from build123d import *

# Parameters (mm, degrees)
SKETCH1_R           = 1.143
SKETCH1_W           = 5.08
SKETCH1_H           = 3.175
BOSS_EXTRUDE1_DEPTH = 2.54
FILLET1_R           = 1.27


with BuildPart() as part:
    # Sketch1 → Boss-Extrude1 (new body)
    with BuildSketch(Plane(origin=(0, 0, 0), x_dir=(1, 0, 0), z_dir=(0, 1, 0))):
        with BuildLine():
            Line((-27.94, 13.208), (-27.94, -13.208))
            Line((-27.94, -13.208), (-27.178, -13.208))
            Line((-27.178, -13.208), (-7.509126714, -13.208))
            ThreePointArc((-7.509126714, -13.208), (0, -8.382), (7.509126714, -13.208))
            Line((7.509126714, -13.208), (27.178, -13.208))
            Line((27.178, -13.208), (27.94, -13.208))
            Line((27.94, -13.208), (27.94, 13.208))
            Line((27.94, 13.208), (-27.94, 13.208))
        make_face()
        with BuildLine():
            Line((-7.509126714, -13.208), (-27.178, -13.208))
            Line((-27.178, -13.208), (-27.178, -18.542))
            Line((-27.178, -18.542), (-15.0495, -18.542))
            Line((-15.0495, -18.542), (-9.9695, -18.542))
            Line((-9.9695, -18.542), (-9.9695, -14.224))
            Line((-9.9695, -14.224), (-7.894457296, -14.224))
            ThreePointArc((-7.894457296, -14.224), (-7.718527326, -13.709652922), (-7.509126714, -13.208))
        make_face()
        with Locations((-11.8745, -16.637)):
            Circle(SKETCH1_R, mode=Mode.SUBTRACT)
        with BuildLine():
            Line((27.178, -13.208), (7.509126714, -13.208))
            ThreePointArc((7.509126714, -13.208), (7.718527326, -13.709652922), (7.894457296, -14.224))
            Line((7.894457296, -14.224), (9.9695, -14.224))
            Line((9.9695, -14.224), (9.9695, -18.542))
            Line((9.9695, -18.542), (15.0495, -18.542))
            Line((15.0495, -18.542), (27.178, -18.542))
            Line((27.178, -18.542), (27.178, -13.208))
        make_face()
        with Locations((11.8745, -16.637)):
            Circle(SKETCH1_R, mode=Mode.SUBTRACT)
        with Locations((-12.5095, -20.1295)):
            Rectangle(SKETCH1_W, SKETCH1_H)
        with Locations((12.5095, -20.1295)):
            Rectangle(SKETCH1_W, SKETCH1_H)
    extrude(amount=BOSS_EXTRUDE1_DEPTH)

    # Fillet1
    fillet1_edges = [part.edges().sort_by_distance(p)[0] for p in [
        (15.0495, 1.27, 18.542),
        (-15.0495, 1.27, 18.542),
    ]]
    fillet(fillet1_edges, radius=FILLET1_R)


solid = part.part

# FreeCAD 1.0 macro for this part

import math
import FreeCAD as App
import Part
import Sketcher

V = App.Vector
Q = App.Units.Quantity


def edges_at(feature, points):
    """Names of the edges that pass closest to the given points."""
    edges = feature.Shape.Edges
    near = lambda p: min(range(len(edges)), key=lambda i: edges[i].distToShape(Part.Vertex(*p))[0])
    return sorted({f"Edge{near(p) + 1}" for p in points})

doc = App.newDocument("Part")
body = doc.addObject("PartDesign::Body", "Body")

sketch1 = body.newObject("Sketcher::SketchObject", "Sketch")
sketch1.AttachmentSupport = (doc.getObject("XZ_Plane"), [""])
sketch1.MapMode = "FlatFace"
sketch1.addGeometry([
    Part.LineSegment(V(-27.9, -13.2, 0), V(-27.9, 13.2, 0)),
    Part.LineSegment(V(-27.9, 13.2, 0), V(-27.2, 13.2, 0)),
    Part.LineSegment(V(-27.2, 13.2, 0), V(-27.2, 18.5, 0)),
    Part.LineSegment(V(-27.2, 18.5, 0), V(-15, 18.5, 0)),
    Part.LineSegment(V(-15, 18.5, 0), V(-15, 21.7, 0)),
    Part.LineSegment(V(-15, 21.7, 0), V(-10, 21.7, 0)),
    Part.LineSegment(V(-10, 21.7, 0), V(-10, 14.2, 0)),
    Part.LineSegment(V(-10, 14.2, 0), V(-7.9, 14.2, 0)),
    Part.ArcOfCircle(Part.Circle(V(0, 16.6, 0), V(0, 0, 1), 8.3), math.radians(-163), math.radians(-155.46)),
    Part.ArcOfCircle(Part.Circle(V(0, 16.6, 0), V(0, 0, 1), 8.3), math.radians(-155), math.radians(-25)),
    Part.ArcOfCircle(Part.Circle(V(0, 16.6, 0), V(0, 0, 1), 8.3), math.radians(-24.54), math.radians(-17)),
    Part.LineSegment(V(7.9, 14.2, 0), V(10, 14.2, 0)),
    Part.LineSegment(V(10, 14.2, 0), V(10, 21.7, 0)),
    Part.LineSegment(V(10, 21.7, 0), V(15, 21.7, 0)),
    Part.LineSegment(V(15, 21.7, 0), V(15, 18.5, 0)),
    Part.LineSegment(V(15, 18.5, 0), V(27.2, 18.5, 0)),
    Part.LineSegment(V(27.2, 18.5, 0), V(27.2, 13.2, 0)),
    Part.LineSegment(V(27.2, 13.2, 0), V(27.9, 13.2, 0)),
    Part.LineSegment(V(27.9, 13.2, 0), V(27.9, -13.2, 0)),
    Part.LineSegment(V(27.9, -13.2, 0), V(-27.9, -13.2, 0)),
    Part.Circle(V(-11.9, 16.6, 0), V(0, 0, 1), 1.1),
    Part.Circle(V(11.9, 16.6, 0), V(0, 0, 1), 1.1),
], False)
sketch1.addConstraint([
    Sketcher.Constraint("Coincident", 0, 2, 1, 1),
    Sketcher.Constraint("Coincident", 1, 2, 2, 1),
    Sketcher.Constraint("Coincident", 2, 2, 3, 1),
    Sketcher.Constraint("Coincident", 3, 2, 4, 1),
    Sketcher.Constraint("Coincident", 4, 2, 5, 1),
    Sketcher.Constraint("Coincident", 5, 2, 6, 1),
    Sketcher.Constraint("Coincident", 6, 2, 7, 1),
    Sketcher.Constraint("Coincident", 7, 2, 8, 1),
    Sketcher.Constraint("Tangent", 8, 2, 9, 1),
    Sketcher.Constraint("Tangent", 9, 2, 10, 1),
    Sketcher.Constraint("Coincident", 10, 2, 11, 1),
    Sketcher.Constraint("Coincident", 11, 2, 12, 1),
    Sketcher.Constraint("Coincident", 12, 2, 13, 1),
    Sketcher.Constraint("Coincident", 13, 2, 14, 1),
    Sketcher.Constraint("Coincident", 14, 2, 15, 1),
    Sketcher.Constraint("Coincident", 15, 2, 16, 1),
    Sketcher.Constraint("Coincident", 16, 2, 17, 1),
    Sketcher.Constraint("Coincident", 17, 2, 18, 1),
    Sketcher.Constraint("Coincident", 18, 2, 19, 1),
    Sketcher.Constraint("Coincident", 19, 2, 0, 1),
    Sketcher.Constraint("Vertical", 0),
    Sketcher.Constraint("Horizontal", 1),
    Sketcher.Constraint("Vertical", 2),
    Sketcher.Constraint("Horizontal", 3),
    Sketcher.Constraint("Vertical", 4),
    Sketcher.Constraint("Horizontal", 5),
    Sketcher.Constraint("Vertical", 6),
    Sketcher.Constraint("Horizontal", 7),
    Sketcher.Constraint("Horizontal", 11),
    Sketcher.Constraint("Vertical", 12),
    Sketcher.Constraint("Horizontal", 13),
    Sketcher.Constraint("Vertical", 14),
    Sketcher.Constraint("Horizontal", 15),
    Sketcher.Constraint("Vertical", 16),
    Sketcher.Constraint("Horizontal", 17),
    Sketcher.Constraint("Vertical", 18),
    Sketcher.Constraint("Horizontal", 19),
    Sketcher.Constraint("Coincident", 10, 3, 8, 3),
    Sketcher.Constraint("Equal", 20, 21),
    Sketcher.Constraint("Symmetric", 0, 2, 18, 2, -1, 1),
    Sketcher.Constraint("Symmetric", 20, 3, 21, 3, -2),
    Sketcher.Constraint("Symmetric", 8, 2, 9, 2, -2),
    Sketcher.Constraint("Symmetric", 6, 2, 11, 2, -2),
    Sketcher.Constraint("Symmetric", 4, 2, 13, 2, -2),
    Sketcher.Constraint("Symmetric", 2, 2, 15, 2, -2),
    Sketcher.Constraint("Horizontal", 10, 3, 20, 3),
    Sketcher.Constraint("Horizontal", 1, 2, 8, 2),
    Sketcher.Constraint("Horizontal", 9, 2, 16, 2),
    Sketcher.Constraint("Diameter", 20, Q("0.09 in")),
    Sketcher.Constraint("DistanceX", 5, 1, 5, 2, Q("0.2 in")),
    Sketcher.Constraint("DistanceX", 19, 2, 19, 1, Q("2.2 in")),
    Sketcher.Constraint("Radius", 8, Q("0.325 in")),
    Sketcher.Constraint("DistanceX", 1, 1, 1, 2, Q("0.03 in")),
    Sketcher.Constraint("DistanceY", 0, 1, 0, 2, Q("1.04 in")),
    Sketcher.Constraint("DistanceY", 2, 1, 2, 2, Q("0.21 in")),
    Sketcher.Constraint("DistanceY", 20, 3, 4, 2, Q("0.2 in")),
    Sketcher.Constraint("DistanceY", 4, 1, 4, 2, Q("0.125 in")),
    Sketcher.Constraint("DistanceY", 6, 2, 6, 1, Q("0.295 in")),
    Sketcher.Constraint("DistanceX", 3, 1, 3, 2, Q("0.4775 in")),
    Sketcher.Constraint("DistanceX", 20, 3, 21, 3, Q("0.935 in")),
])
pad1 = body.newObject("PartDesign::Pad", "Pad")
pad1.Profile = sketch1
pad1.Length = Q("0.1 in")
pad1.Reversed = True
doc.recompute()

fillet = body.newObject("PartDesign::Fillet", "Fillet")
fillet.Base = (pad1, edges_at(pad1, [(15.05, 1.27, 18.542), (-15.05, 1.27, 18.542)]))
fillet.Radius = Q("0.05 in")

doc.recompute()
